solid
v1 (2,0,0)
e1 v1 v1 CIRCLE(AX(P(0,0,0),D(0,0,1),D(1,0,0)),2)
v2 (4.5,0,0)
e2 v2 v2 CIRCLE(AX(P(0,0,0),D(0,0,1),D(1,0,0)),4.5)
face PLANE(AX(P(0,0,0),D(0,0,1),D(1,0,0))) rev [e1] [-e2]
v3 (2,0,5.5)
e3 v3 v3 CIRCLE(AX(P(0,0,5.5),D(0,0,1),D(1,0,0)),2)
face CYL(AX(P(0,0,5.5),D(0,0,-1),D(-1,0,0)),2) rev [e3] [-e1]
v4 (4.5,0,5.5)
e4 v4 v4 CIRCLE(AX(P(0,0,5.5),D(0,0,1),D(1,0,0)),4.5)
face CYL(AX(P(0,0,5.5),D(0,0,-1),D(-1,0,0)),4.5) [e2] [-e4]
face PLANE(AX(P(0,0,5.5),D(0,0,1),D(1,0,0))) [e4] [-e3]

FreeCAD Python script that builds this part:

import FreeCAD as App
import Part
import Sketcher
from FreeCAD import Vector

doc = App.newDocument("Part")
body = doc.addObject("PartDesign::Body", "Body")

# Sketch on XY plane
sketch1 = body.newObject("Sketcher::SketchObject", "Sketch")
sketch1.AttachmentSupport = (doc.getObject("XY_Plane"), [""])
sketch1.MapMode = "FlatFace"
sketch1.addGeometry([
    Part.Circle(Vector(0, 0, 0), Vector(0, 0, 1), 4.5),
    Part.Circle(Vector(0, 0, 0), Vector(0, 0, 1), 2),
], False)
sketch1.addConstraint([
    Sketcher.Constraint("Coincident", 0, 3, -1, 1),
    Sketcher.Constraint("Coincident", 1, 3, -1, 1),
    Sketcher.Constraint("Diameter", 0, 9.0),
    Sketcher.Constraint("Diameter", 1, 4.0),
])
pad1 = body.newObject("PartDesign::Pad", "Pad")
pad1.Profile = sketch1
pad1.Length = 5.5

doc.recompute()
